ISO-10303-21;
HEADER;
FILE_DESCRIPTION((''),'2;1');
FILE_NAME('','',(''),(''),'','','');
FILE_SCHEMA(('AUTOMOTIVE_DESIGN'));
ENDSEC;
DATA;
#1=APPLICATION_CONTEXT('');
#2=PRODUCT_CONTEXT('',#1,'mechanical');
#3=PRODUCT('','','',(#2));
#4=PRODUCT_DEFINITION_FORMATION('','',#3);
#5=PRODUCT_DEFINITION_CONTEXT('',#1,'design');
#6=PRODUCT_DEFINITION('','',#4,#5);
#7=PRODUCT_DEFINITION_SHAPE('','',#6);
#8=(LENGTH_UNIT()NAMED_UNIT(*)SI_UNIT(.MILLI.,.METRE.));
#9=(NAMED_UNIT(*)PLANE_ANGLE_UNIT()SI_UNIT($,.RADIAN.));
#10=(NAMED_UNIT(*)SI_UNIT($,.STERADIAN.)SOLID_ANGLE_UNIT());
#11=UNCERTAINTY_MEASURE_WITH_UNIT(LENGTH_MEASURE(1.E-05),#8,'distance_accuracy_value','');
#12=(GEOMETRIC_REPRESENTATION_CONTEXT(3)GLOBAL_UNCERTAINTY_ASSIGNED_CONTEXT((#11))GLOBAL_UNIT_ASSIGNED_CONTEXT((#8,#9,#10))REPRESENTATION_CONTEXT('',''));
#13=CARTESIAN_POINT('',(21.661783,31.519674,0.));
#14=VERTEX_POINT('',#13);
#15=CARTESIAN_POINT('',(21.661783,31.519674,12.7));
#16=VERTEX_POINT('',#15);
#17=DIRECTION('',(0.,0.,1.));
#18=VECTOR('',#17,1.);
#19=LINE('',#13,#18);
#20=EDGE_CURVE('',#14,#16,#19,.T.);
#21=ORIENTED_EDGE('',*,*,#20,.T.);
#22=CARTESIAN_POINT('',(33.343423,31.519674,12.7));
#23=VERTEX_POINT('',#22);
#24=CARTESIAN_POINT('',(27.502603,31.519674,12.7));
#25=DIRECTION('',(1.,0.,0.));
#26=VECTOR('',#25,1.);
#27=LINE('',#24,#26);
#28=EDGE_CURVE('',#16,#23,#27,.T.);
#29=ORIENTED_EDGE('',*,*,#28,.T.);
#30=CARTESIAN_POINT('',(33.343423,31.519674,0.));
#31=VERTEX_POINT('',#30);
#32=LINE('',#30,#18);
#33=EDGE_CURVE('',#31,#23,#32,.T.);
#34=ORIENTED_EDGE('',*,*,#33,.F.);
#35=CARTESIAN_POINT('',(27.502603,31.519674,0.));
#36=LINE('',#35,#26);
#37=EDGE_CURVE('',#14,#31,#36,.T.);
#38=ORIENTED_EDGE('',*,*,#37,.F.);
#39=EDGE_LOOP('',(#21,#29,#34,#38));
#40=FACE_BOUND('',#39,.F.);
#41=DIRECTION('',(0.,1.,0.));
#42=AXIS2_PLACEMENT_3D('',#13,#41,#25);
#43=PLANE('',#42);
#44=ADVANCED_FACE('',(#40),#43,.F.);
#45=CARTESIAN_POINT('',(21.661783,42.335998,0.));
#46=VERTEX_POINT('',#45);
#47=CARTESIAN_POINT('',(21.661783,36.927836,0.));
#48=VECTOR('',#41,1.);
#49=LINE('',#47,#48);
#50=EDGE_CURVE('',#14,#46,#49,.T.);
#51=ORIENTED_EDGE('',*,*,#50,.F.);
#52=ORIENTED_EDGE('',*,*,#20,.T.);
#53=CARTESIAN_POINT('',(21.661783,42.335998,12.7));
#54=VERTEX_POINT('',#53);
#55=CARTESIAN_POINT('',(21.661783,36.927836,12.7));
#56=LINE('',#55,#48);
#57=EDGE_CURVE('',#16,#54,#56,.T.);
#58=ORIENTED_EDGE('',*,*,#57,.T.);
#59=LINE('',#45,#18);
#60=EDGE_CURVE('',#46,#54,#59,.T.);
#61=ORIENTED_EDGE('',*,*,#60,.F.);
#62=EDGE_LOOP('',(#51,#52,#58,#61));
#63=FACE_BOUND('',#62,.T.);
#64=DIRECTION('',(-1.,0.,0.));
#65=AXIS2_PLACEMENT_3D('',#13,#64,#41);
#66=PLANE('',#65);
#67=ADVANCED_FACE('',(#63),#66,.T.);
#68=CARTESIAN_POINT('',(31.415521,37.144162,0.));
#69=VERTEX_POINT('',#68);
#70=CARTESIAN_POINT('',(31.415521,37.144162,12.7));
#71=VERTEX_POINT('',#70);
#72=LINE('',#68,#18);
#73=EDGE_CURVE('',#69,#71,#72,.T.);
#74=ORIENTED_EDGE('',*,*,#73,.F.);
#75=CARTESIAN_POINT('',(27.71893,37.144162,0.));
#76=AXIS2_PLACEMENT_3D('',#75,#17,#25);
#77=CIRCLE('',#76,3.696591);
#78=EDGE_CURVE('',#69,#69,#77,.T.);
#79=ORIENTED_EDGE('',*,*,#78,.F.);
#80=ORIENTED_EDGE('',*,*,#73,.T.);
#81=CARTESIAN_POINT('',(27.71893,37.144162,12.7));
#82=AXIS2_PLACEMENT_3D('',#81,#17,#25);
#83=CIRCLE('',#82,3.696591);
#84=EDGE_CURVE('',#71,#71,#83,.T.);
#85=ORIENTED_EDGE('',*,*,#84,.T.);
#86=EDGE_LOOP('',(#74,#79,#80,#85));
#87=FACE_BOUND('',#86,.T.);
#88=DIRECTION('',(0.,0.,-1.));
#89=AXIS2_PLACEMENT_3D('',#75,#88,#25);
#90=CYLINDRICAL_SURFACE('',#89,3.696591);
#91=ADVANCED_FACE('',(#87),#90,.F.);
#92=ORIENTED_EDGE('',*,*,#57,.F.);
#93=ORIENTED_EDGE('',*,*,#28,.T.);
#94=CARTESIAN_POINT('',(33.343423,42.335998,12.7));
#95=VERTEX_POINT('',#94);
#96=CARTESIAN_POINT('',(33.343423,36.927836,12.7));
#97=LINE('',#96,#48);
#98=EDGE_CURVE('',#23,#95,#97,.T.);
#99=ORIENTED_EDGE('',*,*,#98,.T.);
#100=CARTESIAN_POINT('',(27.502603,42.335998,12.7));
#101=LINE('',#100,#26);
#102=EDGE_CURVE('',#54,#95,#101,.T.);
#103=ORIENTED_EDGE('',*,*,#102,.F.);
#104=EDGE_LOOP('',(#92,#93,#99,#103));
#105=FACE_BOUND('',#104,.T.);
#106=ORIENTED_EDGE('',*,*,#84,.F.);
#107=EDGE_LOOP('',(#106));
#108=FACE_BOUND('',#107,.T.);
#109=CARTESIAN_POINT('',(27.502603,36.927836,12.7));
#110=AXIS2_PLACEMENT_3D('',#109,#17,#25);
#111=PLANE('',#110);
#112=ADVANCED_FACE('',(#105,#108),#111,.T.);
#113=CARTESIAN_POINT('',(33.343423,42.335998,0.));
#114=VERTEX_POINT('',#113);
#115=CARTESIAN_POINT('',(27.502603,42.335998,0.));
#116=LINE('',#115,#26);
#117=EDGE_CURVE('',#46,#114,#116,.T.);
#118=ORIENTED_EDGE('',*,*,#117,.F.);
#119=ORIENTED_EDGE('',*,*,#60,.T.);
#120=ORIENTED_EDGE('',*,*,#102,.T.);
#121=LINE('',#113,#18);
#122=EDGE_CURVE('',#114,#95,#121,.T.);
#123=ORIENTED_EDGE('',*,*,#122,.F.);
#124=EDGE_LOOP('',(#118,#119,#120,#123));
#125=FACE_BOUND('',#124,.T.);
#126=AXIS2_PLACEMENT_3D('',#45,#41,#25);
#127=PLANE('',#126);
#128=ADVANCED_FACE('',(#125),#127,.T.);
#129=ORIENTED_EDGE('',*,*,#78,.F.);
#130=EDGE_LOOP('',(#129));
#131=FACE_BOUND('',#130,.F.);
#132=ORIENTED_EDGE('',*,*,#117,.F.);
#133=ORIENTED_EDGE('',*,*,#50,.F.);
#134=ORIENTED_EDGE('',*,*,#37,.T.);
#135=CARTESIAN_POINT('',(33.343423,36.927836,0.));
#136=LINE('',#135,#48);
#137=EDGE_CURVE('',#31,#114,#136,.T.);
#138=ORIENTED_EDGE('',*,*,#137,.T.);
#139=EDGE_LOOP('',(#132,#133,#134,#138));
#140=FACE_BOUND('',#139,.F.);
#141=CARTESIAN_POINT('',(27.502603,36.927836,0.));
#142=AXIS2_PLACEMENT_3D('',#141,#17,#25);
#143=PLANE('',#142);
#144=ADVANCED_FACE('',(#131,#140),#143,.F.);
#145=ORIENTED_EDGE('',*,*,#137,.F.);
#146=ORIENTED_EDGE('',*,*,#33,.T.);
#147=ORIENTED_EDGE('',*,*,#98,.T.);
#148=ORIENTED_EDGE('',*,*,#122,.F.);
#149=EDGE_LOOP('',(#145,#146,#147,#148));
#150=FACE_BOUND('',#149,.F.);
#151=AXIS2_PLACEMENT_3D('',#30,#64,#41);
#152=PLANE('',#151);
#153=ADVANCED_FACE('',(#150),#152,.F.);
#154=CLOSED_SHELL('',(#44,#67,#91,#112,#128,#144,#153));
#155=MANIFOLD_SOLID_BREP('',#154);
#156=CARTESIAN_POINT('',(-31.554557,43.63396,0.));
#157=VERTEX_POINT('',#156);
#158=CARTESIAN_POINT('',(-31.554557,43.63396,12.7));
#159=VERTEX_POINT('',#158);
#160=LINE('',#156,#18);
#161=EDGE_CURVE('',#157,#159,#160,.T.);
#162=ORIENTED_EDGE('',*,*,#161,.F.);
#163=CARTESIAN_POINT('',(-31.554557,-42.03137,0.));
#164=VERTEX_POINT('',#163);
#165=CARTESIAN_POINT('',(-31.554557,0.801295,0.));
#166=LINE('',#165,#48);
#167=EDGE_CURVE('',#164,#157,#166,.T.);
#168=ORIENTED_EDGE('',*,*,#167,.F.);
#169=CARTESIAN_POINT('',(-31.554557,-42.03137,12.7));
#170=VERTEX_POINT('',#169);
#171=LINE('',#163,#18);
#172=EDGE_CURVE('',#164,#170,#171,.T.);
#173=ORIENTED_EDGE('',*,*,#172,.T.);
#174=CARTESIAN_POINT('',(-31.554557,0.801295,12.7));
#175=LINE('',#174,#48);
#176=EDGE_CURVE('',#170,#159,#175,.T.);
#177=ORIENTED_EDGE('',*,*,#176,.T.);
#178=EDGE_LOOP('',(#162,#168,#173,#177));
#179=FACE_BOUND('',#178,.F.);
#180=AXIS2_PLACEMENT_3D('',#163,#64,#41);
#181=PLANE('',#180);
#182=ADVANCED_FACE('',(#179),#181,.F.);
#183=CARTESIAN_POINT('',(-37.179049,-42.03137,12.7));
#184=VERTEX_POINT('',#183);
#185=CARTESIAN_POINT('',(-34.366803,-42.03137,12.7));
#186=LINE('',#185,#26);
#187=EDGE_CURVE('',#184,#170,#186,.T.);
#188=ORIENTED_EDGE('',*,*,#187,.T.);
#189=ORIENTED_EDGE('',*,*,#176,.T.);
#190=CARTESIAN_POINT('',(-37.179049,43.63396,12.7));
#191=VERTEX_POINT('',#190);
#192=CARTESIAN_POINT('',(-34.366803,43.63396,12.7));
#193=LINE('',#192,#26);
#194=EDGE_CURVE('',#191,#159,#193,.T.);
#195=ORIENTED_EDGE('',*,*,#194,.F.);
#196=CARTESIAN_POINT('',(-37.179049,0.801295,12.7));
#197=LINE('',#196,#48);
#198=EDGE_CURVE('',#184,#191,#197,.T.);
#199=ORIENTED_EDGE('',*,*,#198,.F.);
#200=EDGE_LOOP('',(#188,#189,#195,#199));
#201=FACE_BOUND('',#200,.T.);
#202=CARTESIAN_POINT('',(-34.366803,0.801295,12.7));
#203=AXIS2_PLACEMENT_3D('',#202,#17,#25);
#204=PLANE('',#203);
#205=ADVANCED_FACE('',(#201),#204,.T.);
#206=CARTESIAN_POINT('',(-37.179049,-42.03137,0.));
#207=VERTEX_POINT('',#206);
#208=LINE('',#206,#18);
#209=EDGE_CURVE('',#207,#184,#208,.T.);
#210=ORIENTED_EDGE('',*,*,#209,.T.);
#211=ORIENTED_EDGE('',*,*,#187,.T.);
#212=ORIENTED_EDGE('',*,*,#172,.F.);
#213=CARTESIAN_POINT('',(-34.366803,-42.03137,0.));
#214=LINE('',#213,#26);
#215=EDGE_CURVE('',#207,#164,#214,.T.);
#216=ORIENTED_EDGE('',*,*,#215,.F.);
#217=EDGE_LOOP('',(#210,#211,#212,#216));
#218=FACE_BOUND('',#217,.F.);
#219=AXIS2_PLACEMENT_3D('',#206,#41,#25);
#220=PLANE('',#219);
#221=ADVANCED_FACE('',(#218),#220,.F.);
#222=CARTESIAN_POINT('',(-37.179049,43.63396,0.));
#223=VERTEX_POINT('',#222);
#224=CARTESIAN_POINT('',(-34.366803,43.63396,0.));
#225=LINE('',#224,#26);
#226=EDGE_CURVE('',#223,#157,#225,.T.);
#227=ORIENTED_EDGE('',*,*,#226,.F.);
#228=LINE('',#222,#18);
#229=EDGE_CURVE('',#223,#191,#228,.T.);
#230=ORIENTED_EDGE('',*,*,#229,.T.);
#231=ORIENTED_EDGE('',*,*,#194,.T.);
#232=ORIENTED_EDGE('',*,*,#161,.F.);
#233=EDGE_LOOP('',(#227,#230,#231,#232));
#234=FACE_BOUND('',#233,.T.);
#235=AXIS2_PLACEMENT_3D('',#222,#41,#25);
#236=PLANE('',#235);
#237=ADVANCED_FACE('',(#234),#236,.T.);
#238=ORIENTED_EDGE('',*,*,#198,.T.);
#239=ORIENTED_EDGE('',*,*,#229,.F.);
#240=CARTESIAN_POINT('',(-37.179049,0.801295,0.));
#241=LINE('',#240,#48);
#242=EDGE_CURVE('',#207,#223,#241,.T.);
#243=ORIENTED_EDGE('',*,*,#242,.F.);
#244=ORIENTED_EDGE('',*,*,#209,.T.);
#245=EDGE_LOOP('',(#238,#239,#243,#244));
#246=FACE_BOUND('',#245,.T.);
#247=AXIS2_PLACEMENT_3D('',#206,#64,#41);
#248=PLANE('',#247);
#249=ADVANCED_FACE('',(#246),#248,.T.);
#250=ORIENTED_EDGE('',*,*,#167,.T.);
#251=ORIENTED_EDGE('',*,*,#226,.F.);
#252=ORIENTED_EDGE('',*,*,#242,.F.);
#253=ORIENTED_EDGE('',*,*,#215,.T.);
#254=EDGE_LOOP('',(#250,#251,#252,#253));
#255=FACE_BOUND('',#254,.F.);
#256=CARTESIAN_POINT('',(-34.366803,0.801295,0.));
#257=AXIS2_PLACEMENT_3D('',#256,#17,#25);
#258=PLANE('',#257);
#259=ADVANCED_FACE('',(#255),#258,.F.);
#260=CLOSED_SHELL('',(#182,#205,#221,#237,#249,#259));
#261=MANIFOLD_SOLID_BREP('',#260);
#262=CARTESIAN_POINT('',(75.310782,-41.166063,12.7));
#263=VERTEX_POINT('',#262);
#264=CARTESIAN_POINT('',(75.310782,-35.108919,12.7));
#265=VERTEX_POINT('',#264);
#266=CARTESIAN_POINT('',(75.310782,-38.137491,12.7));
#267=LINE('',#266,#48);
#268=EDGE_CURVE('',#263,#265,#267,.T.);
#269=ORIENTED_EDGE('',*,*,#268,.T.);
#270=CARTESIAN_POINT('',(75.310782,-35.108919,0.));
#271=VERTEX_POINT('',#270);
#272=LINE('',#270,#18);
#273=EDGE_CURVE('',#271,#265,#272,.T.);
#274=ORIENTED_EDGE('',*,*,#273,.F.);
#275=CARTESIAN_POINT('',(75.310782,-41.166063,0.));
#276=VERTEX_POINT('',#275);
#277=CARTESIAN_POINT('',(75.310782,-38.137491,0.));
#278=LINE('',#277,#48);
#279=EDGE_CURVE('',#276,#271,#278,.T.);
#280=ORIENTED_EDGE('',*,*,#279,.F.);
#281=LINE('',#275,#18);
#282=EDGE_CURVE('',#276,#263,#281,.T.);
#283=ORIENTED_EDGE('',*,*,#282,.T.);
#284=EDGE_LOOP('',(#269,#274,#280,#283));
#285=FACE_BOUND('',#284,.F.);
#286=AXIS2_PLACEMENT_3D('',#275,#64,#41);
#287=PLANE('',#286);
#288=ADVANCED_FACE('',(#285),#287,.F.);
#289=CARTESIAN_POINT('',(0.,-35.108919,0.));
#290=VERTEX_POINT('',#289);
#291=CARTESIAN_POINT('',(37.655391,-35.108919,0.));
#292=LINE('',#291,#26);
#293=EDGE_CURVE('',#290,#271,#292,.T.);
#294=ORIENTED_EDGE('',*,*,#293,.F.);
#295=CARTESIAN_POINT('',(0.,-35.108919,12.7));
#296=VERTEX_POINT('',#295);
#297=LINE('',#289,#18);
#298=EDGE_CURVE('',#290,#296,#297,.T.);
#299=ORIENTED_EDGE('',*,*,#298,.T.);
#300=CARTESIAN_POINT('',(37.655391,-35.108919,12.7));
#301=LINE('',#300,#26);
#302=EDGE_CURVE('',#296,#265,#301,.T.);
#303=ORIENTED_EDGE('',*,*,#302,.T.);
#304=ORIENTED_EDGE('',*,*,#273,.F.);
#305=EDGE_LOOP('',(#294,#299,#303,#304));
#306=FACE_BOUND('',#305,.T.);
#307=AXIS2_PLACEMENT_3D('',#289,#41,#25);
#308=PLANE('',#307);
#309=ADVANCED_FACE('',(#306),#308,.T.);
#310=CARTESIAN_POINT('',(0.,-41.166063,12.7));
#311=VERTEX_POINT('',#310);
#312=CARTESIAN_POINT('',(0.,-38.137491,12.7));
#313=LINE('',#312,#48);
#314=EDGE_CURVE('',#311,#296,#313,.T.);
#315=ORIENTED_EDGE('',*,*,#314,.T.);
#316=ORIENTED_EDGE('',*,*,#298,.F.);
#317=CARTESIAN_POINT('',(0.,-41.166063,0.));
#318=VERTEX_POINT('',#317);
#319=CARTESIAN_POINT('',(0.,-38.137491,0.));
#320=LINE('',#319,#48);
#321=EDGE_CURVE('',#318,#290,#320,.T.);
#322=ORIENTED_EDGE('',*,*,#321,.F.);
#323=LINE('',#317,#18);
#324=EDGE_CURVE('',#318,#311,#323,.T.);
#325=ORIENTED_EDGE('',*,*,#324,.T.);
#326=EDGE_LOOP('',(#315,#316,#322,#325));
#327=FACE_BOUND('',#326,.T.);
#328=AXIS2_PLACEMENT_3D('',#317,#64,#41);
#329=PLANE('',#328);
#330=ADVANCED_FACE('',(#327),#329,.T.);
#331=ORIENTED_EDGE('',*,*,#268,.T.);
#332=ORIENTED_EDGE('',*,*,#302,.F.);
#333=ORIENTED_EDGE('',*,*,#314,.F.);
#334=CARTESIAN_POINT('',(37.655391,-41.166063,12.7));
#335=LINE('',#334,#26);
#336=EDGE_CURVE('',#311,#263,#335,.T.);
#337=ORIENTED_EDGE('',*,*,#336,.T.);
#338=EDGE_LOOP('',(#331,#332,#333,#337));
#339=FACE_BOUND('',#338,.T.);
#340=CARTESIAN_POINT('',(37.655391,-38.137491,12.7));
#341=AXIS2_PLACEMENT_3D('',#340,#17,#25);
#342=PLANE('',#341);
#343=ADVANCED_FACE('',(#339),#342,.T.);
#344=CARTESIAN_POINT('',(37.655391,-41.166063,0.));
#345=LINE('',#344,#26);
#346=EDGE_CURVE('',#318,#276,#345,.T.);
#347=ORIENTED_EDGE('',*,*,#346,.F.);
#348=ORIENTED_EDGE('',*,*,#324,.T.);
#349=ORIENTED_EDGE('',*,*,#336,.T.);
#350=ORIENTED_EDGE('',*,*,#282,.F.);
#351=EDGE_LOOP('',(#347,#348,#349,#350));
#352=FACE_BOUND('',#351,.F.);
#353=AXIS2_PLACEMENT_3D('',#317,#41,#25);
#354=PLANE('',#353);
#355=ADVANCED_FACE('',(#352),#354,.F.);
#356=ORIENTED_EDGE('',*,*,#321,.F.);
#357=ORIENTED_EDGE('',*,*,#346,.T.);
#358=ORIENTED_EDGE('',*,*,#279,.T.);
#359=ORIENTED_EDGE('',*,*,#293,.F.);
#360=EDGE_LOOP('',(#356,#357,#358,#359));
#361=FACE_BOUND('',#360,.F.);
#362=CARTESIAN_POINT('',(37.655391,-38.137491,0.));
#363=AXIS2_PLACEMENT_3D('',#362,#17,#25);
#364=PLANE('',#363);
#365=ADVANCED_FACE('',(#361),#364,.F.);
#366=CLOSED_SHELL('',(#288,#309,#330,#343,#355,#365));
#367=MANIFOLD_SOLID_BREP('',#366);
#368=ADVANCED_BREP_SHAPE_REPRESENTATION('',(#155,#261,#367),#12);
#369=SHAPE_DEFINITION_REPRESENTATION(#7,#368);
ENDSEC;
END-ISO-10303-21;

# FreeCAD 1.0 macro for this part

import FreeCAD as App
import Part
import Sketcher

V = App.Vector
Q = App.Units.Quantity


def add_polygon(sketch, points):
    """Adds a closed chain of lines whose ends are joined by coincident constraints."""
    first, n = sketch.GeometryCount, len(points)
    for a, b in zip(points, points[1:] + points[:1]):
        sketch.addGeometry(Part.LineSegment(App.Vector(*a, 0), App.Vector(*b, 0)), False)
    for i in range(n):
        sketch.addConstraint(Sketcher.Constraint("Coincident", first + i, 2, first + (i + 1) % n, 1))

doc = App.newDocument("Part")
body = doc.addObject("PartDesign::Body", "Body")
body.AllowCompound = True

# Sketch on XY plane
sketch1 = body.newObject("Sketcher::SketchObject", "Sketch")
sketch1.AttachmentSupport = (doc.getObject("XY_Plane"), [""])
sketch1.MapMode = "FlatFace"
add_polygon(sketch1, [(-37.2, 43.6), (-37.2, -42), (-31.6, -42), (-31.6, 43.6)])  # lines 0-3
add_polygon(sketch1, [(21.7, 42.3), (21.7, 31.5), (33.3, 31.5), (33.3, 42.3)])  # lines 4-7
sketch1.addGeometry(Part.Circle(V(27.7, 37.1, 0), V(0, 0, 1), 3.7), False)  # 8
add_polygon(sketch1, [(0, -35.1), (0, -41.2), (75.3, -41.2), (75.3, -35.1)])  # lines 9-12
sketch1.addConstraint(Sketcher.Constraint("Vertical", 0))
sketch1.addConstraint(Sketcher.Constraint("Horizontal", 1))
sketch1.addConstraint(Sketcher.Constraint("Vertical", 2))
sketch1.addConstraint(Sketcher.Constraint("Horizontal", 3))
sketch1.addConstraint(Sketcher.Constraint("Vertical", 4))
sketch1.addConstraint(Sketcher.Constraint("Horizontal", 5))
sketch1.addConstraint(Sketcher.Constraint("Vertical", 6))
sketch1.addConstraint(Sketcher.Constraint("Horizontal", 7))
sketch1.addConstraint(Sketcher.Constraint("Vertical", 9))
sketch1.addConstraint(Sketcher.Constraint("Horizontal", 10))
sketch1.addConstraint(Sketcher.Constraint("Vertical", 11))
sketch1.addConstraint(Sketcher.Constraint("Horizontal", 12))
sketch1.addConstraint(Sketcher.Constraint("PointOnObject", 9, 2, -2))
sketch1.addConstraint(Sketcher.Constraint("Diameter", 8, 7.393182))
sketch1.addConstraint(Sketcher.Constraint("DistanceX", 5, 1, 5, 2, 11.681639))
sketch1.addConstraint(Sketcher.Constraint("DistanceY", 0, 2, 0, 1, 85.66533))
sketch1.addConstraint(Sketcher.Constraint("DistanceY", 8, 3, 2, 2, 6.489798))
sketch1.addConstraint(Sketcher.Constraint("DistanceX", 4, 2, 10, 2, 53.648999))
sketch1.addConstraint(Sketcher.Constraint("DistanceX", 1, 1, 1, 2, 5.624492))
sketch1.addConstraint(Sketcher.Constraint("DistanceX", 10, 1, 10, 2, 75.310782))
sketch1.addConstraint(Sketcher.Constraint("DistanceY", 4, 2, 4, 1, 10.816324))
sketch1.addConstraint(Sketcher.Constraint("DistanceY", 9, 2, 9, 1, 6.057143))
sketch1.addConstraint(Sketcher.Constraint("DistanceX", -1, 1, 8, 3, 27.71893))
sketch1.addConstraint(Sketcher.Constraint("DistanceX", 0, 2, -1, 1, 37.179049))
sketch1.addConstraint(Sketcher.Constraint("DistanceY", 0, 2, -1, 1, 42.03137))
sketch1.addConstraint(Sketcher.Constraint("DistanceY", 11, 2, -1, 1, 35.108919))
sketch1.addConstraint(Sketcher.Constraint("DistanceY", 4, 2, 8, 3, 5.624488))
pad1 = body.newObject("PartDesign::Pad", "Pad")
pad1.Profile = sketch1
pad1.Length = Q("0.5 in")

doc.recompute()
